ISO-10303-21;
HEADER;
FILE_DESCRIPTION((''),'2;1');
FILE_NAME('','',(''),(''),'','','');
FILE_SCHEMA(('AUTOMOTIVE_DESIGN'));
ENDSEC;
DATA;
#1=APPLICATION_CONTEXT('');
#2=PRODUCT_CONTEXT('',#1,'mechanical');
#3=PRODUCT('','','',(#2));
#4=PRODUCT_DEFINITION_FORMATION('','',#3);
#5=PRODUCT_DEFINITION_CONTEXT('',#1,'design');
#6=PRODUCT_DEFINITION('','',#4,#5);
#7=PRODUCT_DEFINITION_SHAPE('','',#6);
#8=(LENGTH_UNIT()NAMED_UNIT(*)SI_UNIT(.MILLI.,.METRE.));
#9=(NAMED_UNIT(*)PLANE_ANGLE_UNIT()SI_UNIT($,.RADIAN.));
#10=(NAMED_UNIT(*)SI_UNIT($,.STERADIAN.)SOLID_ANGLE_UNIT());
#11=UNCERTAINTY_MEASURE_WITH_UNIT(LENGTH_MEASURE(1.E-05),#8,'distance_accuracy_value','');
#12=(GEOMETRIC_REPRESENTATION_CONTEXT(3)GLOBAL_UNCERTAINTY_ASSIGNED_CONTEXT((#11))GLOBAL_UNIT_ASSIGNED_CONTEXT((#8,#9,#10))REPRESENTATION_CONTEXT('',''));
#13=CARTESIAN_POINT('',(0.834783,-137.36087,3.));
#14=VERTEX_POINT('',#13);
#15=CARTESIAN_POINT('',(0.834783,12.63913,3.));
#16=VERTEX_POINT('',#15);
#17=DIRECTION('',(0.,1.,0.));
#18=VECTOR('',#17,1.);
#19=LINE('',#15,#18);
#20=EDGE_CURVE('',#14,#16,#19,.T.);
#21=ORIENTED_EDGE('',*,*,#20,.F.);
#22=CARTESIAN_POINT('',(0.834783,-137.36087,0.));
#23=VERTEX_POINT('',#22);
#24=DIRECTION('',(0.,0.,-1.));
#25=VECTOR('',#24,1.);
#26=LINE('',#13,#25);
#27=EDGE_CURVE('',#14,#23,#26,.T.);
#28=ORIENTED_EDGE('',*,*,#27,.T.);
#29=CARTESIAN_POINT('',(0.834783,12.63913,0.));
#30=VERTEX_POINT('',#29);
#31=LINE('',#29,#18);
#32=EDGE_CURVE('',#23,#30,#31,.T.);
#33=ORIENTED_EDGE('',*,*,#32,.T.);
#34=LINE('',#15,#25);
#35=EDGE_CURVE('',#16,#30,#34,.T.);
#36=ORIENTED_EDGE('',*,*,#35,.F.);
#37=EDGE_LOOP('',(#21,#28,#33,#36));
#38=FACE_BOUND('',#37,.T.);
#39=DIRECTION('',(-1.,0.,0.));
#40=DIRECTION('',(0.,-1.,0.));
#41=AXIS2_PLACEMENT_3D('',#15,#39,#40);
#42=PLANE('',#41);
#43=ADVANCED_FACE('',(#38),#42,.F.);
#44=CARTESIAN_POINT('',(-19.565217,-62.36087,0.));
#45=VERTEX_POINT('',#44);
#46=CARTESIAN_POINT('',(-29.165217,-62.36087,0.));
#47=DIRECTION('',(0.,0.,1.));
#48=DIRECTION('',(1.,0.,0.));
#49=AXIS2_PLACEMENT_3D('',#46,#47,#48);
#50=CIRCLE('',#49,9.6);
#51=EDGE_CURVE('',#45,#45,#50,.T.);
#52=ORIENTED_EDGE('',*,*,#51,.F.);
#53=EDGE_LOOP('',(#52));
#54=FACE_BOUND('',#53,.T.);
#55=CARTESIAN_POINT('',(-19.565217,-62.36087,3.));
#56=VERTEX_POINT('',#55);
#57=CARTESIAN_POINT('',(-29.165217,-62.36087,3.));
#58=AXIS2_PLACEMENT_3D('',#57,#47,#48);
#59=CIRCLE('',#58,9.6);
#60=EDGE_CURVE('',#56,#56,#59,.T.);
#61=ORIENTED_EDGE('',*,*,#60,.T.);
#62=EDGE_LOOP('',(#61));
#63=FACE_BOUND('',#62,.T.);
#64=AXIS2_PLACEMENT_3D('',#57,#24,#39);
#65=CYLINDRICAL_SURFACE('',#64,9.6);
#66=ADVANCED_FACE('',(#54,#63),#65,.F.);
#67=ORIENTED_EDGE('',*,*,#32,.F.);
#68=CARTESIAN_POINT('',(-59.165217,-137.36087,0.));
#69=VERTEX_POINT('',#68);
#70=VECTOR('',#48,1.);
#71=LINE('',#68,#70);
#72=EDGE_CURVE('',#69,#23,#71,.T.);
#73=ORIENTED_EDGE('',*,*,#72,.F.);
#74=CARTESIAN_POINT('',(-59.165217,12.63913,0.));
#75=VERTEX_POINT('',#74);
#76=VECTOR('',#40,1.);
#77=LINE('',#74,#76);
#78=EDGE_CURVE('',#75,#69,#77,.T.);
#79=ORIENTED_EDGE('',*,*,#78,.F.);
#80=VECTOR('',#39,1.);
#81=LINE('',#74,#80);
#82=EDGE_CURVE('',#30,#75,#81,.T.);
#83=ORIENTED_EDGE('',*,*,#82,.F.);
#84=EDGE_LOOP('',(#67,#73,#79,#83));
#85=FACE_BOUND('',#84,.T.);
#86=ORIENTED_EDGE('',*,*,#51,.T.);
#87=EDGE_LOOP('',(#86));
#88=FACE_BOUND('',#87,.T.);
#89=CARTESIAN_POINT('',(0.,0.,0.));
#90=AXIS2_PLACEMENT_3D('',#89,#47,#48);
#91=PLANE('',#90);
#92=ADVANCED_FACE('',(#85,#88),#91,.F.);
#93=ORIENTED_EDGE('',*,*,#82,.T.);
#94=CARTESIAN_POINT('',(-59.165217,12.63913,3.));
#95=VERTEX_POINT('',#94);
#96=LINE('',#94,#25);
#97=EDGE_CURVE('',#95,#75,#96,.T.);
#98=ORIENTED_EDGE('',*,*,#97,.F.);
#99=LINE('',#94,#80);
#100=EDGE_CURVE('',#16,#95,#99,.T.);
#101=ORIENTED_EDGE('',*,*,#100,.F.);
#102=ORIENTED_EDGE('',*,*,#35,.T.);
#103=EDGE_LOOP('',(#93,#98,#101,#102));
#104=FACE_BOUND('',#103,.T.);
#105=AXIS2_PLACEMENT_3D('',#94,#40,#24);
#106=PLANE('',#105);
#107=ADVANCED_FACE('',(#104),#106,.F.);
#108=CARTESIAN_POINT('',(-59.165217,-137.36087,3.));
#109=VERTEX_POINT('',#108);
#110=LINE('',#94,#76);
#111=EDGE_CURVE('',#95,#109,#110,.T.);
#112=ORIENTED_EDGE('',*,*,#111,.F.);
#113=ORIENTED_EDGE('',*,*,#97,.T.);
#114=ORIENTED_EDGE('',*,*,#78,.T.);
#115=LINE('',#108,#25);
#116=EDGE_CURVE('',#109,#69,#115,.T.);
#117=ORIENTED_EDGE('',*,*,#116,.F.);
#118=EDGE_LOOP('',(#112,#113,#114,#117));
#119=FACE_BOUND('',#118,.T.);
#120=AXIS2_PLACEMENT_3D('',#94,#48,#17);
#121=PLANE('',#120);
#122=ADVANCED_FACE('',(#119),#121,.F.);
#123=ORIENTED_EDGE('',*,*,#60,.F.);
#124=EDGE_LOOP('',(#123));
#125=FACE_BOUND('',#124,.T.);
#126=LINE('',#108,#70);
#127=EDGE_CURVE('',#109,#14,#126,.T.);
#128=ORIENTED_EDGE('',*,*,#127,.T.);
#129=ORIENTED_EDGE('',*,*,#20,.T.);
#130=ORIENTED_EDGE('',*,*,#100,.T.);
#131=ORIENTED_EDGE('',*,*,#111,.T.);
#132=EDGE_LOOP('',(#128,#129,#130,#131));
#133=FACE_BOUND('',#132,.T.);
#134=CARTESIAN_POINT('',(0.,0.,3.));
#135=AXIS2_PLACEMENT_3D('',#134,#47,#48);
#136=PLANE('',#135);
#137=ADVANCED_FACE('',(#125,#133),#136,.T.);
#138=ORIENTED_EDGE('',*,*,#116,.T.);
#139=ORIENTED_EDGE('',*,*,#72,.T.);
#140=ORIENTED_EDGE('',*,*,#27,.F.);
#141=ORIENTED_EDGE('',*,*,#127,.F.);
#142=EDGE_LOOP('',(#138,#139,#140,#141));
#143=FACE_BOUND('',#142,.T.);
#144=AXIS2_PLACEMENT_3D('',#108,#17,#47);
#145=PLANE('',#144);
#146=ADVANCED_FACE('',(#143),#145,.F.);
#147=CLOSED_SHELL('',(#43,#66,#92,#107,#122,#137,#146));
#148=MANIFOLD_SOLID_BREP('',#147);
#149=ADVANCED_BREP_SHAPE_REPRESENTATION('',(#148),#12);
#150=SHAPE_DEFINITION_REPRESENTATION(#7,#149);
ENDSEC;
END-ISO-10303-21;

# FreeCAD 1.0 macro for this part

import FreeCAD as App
import Part
import Sketcher
from FreeCAD import Vector

doc = App.newDocument("Part")
body = doc.addObject("PartDesign::Body", "Body")

sketch1 = body.newObject("Sketcher::SketchObject", "Sketch")
sketch1.AttachmentSupport = (doc.getObject("XY_Plane"), [""])
sketch1.MapMode = "FlatFace"
sketch1.addGeometry([
    Part.LineSegment(Vector(-59, 13, 0), Vector(-59, -137, 0)),
    Part.LineSegment(Vector(-59, -137, 0), Vector(1, -137, 0)),
    Part.LineSegment(Vector(1, -137, 0), Vector(1, 13, 0)),
    Part.LineSegment(Vector(1, 13, 0), Vector(-59, 13, 0)),
    Part.Circle(Vector(-29, -62, 0), Vector(0, 0, 1), 10),
], False)
sketch1.addConstraint([
    Sketcher.Constraint("Coincident", 0, 2, 1, 1),
    Sketcher.Constraint("Coincident", 1, 2, 2, 1),
    Sketcher.Constraint("Coincident", 2, 2, 3, 1),
    Sketcher.Constraint("Coincident", 3, 2, 0, 1),
    Sketcher.Constraint("Vertical", 0),
    Sketcher.Constraint("Horizontal", 1),
    Sketcher.Constraint("Vertical", 2),
    Sketcher.Constraint("Horizontal", 3),
    Sketcher.Constraint("Diameter", 4, 19.2),
    Sketcher.Constraint("DistanceX", 1, 1, 1, 2, 60.0),
    Sketcher.Constraint("DistanceY", 0, 2, 0, 1, 150.0),
    Sketcher.Constraint("DistanceX", 0, 2, 4, 3, 30.0),
    Sketcher.Constraint("DistanceY", 0, 2, 4, 3, 75.0),
    Sketcher.Constraint("DistanceY", 4, 3, -1, 1, 62.36087),
    Sketcher.Constraint("DistanceX", 4, 3, -1, 1, 29.165217),
])
pad1 = body.newObject("PartDesign::Pad", "Pad")
pad1.Profile = sketch1
pad1.Length = 3

doc.recompute()
